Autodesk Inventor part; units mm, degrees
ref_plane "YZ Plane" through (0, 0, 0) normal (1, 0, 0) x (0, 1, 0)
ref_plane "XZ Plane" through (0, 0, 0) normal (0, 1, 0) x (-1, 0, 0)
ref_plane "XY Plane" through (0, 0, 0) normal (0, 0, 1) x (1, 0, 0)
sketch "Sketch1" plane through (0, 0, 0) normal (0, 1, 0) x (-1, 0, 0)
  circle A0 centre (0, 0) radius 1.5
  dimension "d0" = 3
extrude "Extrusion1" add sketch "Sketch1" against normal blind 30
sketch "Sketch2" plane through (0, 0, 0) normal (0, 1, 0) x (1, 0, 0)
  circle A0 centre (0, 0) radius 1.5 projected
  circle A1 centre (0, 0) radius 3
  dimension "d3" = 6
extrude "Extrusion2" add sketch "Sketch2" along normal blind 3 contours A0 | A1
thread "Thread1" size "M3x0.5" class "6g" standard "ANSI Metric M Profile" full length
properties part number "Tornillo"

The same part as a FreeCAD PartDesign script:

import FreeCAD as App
import Part
import Sketcher

V = App.Vector

doc = App.newDocument("Part")
params = doc.addObject("Spreadsheet::Sheet", "Params")
for row, (alias, value) in enumerate([
    ("sketch1_diameter", "3 mm"),
    ("pad1_length", "30 mm"),
    ("sketch2_diameter", "6 mm"),
    ("pad2_length", "3 mm"),
], start=1):
    params.set(f"A{row}", alias)
    params.set(f"B{row}", "=" + value)
    params.setAlias(f"B{row}", alias)

body = doc.addObject("PartDesign::Body", "Body")

# Sketch on XZ plane
sketch1 = doc.addObject("Sketcher::SketchObject", "Sketch")
body.addObject(sketch1)
sketch1.AttachmentSupport = (doc.XZ_Plane, [""])
sketch1.MapMode = "FlatFace"
sketch1.addGeometry(Part.Circle(V(0, 0, 0), V(0, 0, 1), 1.5), False)
sketch1.addConstraint([
    Sketcher.Constraint("Coincident", 0, 3, -1, 1),
    Sketcher.Constraint("Diameter", 0, 3.0),
])
sketch1.setExpression("Constraints[1]", "Params.sketch1_diameter")
pad1 = doc.addObject("PartDesign::Pad", "Pad")
body.addObject(pad1)
pad1.Profile = sketch1
pad1.setExpression("Length", "Params.pad1_length")

# Sketch on XZ plane
sketch2 = doc.addObject("Sketcher::SketchObject", "Sketch001")
body.addObject(sketch2)
sketch2.AttachmentSupport = (doc.XZ_Plane, [""])
sketch2.MapMode = "FlatFace"
sketch2.addGeometry(Part.Circle(V(0, 0, 0), V(0, 0, 1), 3), False)
sketch2.addConstraint([
    Sketcher.Constraint("Coincident", 0, 3, -1, 1),
    Sketcher.Constraint("Diameter", 0, 6.0),
])
sketch2.setExpression("Constraints[1]", "Params.sketch2_diameter")
pad2 = doc.addObject("PartDesign::Pad", "Pad001")
body.addObject(pad2)
pad2.Profile = sketch2
pad2.setExpression("Length", "Params.pad2_length")
pad2.Reversed = True

doc.recompute()
